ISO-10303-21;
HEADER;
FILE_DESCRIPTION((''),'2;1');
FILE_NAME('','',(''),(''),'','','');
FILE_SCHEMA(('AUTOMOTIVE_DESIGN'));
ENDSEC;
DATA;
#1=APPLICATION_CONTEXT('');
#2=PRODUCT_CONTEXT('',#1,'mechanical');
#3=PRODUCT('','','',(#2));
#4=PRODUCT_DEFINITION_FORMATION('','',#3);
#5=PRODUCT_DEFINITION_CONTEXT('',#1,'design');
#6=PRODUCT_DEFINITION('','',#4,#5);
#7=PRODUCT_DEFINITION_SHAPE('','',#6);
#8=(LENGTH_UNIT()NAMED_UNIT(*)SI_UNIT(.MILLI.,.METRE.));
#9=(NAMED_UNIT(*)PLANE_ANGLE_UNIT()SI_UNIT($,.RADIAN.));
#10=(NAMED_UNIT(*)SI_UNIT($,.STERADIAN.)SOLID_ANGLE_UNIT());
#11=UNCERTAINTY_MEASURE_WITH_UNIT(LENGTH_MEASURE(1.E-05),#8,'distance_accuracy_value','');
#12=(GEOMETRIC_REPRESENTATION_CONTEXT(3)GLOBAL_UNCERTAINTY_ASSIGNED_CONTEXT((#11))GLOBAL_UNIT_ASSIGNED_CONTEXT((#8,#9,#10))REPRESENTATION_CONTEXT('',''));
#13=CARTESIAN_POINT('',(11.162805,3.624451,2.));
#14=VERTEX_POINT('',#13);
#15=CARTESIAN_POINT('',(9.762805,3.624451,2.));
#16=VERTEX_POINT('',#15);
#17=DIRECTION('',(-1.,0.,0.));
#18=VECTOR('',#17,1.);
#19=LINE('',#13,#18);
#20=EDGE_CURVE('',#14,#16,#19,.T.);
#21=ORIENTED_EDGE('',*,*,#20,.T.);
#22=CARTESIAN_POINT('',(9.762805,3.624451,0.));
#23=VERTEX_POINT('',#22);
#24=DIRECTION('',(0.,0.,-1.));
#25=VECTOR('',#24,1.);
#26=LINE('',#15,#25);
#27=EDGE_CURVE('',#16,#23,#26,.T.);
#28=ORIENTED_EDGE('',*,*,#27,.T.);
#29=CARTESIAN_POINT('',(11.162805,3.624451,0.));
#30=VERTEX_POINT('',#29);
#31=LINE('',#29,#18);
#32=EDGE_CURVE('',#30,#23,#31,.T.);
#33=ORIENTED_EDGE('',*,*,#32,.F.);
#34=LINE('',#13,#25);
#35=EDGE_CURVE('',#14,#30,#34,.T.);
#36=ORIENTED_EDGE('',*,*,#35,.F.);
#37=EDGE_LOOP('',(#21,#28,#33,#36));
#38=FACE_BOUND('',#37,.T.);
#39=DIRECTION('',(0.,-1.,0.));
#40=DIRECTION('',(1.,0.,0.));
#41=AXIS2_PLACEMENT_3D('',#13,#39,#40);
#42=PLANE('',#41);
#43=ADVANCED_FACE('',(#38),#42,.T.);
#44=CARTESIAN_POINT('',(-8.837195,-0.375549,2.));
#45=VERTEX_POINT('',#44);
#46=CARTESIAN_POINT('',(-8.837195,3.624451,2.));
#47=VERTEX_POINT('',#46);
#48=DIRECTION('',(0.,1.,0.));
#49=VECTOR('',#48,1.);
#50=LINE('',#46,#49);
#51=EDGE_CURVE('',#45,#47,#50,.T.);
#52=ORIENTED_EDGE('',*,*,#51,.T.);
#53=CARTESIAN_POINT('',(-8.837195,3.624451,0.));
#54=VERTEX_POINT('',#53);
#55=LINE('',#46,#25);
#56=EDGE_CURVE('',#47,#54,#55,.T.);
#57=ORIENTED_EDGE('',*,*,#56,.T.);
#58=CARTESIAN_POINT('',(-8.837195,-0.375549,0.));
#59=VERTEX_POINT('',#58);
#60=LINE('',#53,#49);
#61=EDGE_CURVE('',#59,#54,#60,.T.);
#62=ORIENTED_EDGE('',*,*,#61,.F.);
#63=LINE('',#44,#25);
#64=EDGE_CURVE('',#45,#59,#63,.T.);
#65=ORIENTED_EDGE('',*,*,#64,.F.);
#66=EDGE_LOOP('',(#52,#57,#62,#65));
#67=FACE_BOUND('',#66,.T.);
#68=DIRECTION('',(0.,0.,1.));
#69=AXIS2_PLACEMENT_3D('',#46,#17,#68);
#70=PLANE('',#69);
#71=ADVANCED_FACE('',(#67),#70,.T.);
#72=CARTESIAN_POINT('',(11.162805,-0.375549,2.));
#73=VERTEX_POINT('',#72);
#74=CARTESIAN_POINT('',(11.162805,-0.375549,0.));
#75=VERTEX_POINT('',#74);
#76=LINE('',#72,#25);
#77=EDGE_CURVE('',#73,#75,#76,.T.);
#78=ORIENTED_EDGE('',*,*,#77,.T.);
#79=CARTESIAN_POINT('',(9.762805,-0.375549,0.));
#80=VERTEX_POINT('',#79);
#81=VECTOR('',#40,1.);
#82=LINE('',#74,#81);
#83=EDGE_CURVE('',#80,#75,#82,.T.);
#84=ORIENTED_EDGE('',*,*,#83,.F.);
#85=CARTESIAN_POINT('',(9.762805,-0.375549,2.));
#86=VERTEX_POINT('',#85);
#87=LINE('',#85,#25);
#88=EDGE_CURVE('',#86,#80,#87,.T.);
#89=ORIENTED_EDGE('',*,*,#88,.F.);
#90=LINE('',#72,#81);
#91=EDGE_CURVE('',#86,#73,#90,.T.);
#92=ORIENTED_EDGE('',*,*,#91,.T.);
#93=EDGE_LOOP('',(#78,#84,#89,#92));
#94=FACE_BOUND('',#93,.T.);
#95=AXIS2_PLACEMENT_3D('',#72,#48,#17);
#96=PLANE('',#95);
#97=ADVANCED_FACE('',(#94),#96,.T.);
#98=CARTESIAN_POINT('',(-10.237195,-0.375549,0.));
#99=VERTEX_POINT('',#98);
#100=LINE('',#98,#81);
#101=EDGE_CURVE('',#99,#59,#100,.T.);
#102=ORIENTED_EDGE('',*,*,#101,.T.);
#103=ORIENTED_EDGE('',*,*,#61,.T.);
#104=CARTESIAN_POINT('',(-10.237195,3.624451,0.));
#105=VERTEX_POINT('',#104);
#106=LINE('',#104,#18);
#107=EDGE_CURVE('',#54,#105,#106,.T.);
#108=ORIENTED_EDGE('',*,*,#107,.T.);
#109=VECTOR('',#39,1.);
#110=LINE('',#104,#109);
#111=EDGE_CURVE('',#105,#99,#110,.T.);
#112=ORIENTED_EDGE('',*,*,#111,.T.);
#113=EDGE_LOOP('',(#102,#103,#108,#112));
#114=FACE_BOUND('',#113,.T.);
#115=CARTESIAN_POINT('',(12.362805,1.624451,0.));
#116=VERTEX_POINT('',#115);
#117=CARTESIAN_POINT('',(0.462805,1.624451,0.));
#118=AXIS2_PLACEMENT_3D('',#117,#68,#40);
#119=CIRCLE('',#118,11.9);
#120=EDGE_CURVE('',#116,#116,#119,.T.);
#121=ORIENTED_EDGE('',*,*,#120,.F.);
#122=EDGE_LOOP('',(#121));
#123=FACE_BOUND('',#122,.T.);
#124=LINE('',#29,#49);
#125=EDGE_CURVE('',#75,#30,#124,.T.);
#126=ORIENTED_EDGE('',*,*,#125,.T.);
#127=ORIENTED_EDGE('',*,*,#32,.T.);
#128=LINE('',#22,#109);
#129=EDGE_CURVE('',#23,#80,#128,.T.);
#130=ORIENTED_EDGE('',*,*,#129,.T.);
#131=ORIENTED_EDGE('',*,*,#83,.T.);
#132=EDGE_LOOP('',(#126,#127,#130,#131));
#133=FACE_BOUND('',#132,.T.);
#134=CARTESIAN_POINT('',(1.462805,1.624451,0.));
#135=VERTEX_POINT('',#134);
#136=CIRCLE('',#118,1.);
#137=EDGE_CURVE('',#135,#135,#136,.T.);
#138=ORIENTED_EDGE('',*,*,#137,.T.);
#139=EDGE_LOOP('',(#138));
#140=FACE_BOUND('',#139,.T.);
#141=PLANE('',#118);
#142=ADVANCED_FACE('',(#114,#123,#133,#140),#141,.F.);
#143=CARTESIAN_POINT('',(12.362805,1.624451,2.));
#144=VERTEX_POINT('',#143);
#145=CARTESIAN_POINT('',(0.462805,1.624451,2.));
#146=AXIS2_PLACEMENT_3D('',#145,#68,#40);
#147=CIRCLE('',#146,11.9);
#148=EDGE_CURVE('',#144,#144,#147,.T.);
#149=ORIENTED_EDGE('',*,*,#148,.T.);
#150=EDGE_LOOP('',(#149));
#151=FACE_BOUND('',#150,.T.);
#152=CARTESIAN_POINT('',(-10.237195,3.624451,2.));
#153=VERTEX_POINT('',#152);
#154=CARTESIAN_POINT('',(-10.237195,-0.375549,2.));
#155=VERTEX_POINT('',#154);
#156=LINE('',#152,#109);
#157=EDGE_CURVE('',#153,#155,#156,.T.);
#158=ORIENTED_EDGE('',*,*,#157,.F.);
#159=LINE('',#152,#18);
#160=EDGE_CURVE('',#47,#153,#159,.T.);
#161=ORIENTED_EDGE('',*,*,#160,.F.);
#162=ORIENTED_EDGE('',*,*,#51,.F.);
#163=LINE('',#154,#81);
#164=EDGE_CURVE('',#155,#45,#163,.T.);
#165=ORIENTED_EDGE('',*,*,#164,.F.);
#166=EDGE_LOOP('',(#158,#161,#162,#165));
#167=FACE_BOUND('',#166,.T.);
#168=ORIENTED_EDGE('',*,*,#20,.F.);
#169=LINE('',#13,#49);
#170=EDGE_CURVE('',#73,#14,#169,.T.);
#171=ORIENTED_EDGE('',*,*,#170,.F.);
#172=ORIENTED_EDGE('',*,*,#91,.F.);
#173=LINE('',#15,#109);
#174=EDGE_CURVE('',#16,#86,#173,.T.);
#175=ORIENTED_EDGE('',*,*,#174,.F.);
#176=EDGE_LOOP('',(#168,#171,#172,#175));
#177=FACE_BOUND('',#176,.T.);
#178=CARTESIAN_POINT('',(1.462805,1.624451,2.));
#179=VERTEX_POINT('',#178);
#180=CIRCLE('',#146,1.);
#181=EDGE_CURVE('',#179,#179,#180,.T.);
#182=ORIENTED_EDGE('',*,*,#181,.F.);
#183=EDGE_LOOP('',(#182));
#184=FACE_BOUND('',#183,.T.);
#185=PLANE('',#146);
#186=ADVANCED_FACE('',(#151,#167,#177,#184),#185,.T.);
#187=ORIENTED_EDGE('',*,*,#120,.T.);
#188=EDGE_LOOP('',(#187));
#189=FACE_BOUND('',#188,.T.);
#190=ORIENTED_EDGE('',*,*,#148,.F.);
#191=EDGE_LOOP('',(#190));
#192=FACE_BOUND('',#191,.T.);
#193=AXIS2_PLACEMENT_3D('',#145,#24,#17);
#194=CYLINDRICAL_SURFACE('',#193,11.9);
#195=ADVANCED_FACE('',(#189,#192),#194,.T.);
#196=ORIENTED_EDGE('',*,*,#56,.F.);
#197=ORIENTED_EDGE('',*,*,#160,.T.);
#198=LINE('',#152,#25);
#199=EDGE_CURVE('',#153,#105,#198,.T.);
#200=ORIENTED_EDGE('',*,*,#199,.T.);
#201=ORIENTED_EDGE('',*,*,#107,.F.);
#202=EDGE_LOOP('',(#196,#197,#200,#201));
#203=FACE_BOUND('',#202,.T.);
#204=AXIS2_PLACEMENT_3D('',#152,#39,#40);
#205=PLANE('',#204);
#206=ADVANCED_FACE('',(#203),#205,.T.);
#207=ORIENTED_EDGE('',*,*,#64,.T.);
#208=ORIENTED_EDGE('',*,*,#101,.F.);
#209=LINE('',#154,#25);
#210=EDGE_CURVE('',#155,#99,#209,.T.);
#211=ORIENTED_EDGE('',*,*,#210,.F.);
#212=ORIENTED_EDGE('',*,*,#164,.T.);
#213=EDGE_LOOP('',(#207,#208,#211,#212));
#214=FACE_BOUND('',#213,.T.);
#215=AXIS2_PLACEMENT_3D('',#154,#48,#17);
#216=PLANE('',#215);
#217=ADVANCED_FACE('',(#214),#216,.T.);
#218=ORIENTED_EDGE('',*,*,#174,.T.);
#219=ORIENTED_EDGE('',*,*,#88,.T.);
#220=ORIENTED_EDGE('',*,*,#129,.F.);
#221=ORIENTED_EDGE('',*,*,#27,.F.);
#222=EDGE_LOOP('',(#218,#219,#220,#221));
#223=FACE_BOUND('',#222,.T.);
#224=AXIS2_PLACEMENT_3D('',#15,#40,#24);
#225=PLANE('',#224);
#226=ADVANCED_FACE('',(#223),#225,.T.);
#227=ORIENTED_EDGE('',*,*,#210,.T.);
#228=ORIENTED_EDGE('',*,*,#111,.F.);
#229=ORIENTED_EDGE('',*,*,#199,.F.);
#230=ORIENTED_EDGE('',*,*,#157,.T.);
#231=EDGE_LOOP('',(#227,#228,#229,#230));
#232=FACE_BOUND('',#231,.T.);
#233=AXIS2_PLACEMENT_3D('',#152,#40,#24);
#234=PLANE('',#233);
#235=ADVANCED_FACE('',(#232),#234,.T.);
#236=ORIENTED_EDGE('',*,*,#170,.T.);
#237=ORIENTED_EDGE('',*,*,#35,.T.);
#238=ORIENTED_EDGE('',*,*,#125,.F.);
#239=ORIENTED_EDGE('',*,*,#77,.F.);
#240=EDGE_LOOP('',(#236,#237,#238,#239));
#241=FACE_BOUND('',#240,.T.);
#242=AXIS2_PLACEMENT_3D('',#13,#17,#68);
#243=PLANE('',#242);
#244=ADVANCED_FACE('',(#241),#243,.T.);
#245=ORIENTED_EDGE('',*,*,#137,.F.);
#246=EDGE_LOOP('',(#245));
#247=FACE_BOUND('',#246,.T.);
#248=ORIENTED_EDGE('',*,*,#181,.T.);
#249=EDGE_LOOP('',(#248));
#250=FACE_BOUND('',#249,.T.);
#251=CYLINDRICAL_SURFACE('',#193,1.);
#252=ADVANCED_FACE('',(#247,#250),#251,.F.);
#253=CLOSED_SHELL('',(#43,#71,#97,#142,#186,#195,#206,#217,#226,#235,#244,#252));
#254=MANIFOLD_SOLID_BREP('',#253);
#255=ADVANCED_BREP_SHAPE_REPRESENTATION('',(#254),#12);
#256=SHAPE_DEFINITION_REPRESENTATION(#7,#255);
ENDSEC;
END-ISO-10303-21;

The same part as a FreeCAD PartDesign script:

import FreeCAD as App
import Part
import Sketcher

doc = App.newDocument("Part")
params = doc.addObject("Spreadsheet::Sheet", "Params")
for row, (alias, value) in enumerate([
    ("sketch1_diameter", "2 mm"),
    ("sketch1_diameter2", "23.8 mm"),
    ("sketch1_height", "4 mm"),
    ("sketch1_width", "1.4 mm"),
    ("pad1_length", "2 mm"),
], start=1):
    params.set(f"A{row}", alias)
    params.set(f"B{row}", "=" + value)
    params.setAlias(f"B{row}", alias)

body = doc.addObject("PartDesign::Body", "Body")

# Sketch on XY plane
sketch1 = body.newObject("Sketcher::SketchObject", "Sketch")
sketch1.AttachmentSupport = (doc.getObject("XY_Plane"), [""])
sketch1.MapMode = "FlatFace"
sketch1.addGeometry(Part.Circle(App.Vector(0.462805, 1.624451, 0), App.Vector(0, 0, 1), 11.9), False)
sketch1.addGeometry(Part.LineSegment(App.Vector(-8.837195, -0.375549, 0), App.Vector(-10.237195, -0.375549, 0)), False)
sketch1.addGeometry(Part.LineSegment(App.Vector(-10.237195, -0.375549, 0), App.Vector(-10.237195, 3.624451, 0)), False)
sketch1.addGeometry(Part.LineSegment(App.Vector(-10.237195, 3.624451, 0), App.Vector(-8.837195, 3.624451, 0)), False)
sketch1.addGeometry(Part.LineSegment(App.Vector(-8.837195, 3.624451, 0), App.Vector(-8.837195, -0.375549, 0)), False)
sketch1.addGeometry(Part.Circle(App.Vector(0.462805, 1.624451, 0), App.Vector(0, 0, 1), 1), False)
sketch1.addGeometry(Part.LineSegment(App.Vector(11.162805, -0.375549, 0), App.Vector(9.762805, -0.375549, 0)), False)
sketch1.addGeometry(Part.LineSegment(App.Vector(9.762805, -0.375549, 0), App.Vector(9.762805, 3.624451, 0)), False)
sketch1.addGeometry(Part.LineSegment(App.Vector(9.762805, 3.624451, 0), App.Vector(11.162805, 3.624451, 0)), False)
sketch1.addGeometry(Part.LineSegment(App.Vector(11.162805, 3.624451, 0), App.Vector(11.162805, -0.375549, 0)), False)
sketch1.addConstraint(Sketcher.Constraint("Coincident", 1, 2, 2, 1))
sketch1.addConstraint(Sketcher.Constraint("Coincident", 2, 2, 3, 1))
sketch1.addConstraint(Sketcher.Constraint("Coincident", 3, 2, 4, 1))
sketch1.addConstraint(Sketcher.Constraint("Coincident", 4, 2, 1, 1))
sketch1.addConstraint(Sketcher.Constraint("Coincident", 6, 2, 7, 1))
sketch1.addConstraint(Sketcher.Constraint("Coincident", 7, 2, 8, 1))
sketch1.addConstraint(Sketcher.Constraint("Coincident", 8, 2, 9, 1))
sketch1.addConstraint(Sketcher.Constraint("Coincident", 9, 2, 6, 1))
sketch1.addConstraint(Sketcher.Constraint("Horizontal", 1))
sketch1.addConstraint(Sketcher.Constraint("Vertical", 2))
sketch1.addConstraint(Sketcher.Constraint("Horizontal", 3))
sketch1.addConstraint(Sketcher.Constraint("Vertical", 4))
sketch1.addConstraint(Sketcher.Constraint("Horizontal", 6))
sketch1.addConstraint(Sketcher.Constraint("Vertical", 7))
sketch1.addConstraint(Sketcher.Constraint("Horizontal", 8))
sketch1.addConstraint(Sketcher.Constraint("Vertical", 9))
sketch1.addConstraint(Sketcher.Constraint("Coincident", 5, 3, 0, 3))
sketch1.addConstraint(Sketcher.Constraint("Horizontal", 4, 2, 6, 2))
sketch1.addConstraint(Sketcher.Constraint("Horizontal", 3, 2, 7, 2))
sketch1.addConstraint(Sketcher.Constraint("Equal", 3, 6))
sketch1.addConstraint(Sketcher.Constraint("Diameter", 5, 2.0))
sketch1.addConstraint(Sketcher.Constraint("Diameter", 0, 23.8))
sketch1.addConstraint(Sketcher.Constraint("DistanceY", 2, 1, 2, 2, 4.0))
sketch1.addConstraint(Sketcher.Constraint("DistanceX", 1, 2, 1, 1, 1.4))
sketch1.addConstraint(Sketcher.Constraint("DistanceY", 1, 2, 0, 3, 2.0))
sketch1.addConstraint(Sketcher.Constraint("DistanceX", 1, 2, 6, 2, 20.0))
sketch1.addConstraint(Sketcher.Constraint("DistanceX", 1, 2, 0, 3, 10.7))
sketch1.addConstraint(Sketcher.Constraint("DistanceY", -1, 1, 0, 3, 1.624451))
sketch1.addConstraint(Sketcher.Constraint("DistanceX", -1, 1, 0, 3, 0.462805))
sketch1.setExpression("Constraints[20]", "Params.sketch1_diameter")
sketch1.setExpression("Constraints[21]", "Params.sketch1_diameter2")
sketch1.setExpression("Constraints[22]", "Params.sketch1_height")
sketch1.setExpression("Constraints[23]", "Params.sketch1_width")
pad1 = body.newObject("PartDesign::Pad", "Pad")
pad1.Profile = sketch1
pad1.setExpression("Length", "Params.pad1_length")

doc.recompute()
